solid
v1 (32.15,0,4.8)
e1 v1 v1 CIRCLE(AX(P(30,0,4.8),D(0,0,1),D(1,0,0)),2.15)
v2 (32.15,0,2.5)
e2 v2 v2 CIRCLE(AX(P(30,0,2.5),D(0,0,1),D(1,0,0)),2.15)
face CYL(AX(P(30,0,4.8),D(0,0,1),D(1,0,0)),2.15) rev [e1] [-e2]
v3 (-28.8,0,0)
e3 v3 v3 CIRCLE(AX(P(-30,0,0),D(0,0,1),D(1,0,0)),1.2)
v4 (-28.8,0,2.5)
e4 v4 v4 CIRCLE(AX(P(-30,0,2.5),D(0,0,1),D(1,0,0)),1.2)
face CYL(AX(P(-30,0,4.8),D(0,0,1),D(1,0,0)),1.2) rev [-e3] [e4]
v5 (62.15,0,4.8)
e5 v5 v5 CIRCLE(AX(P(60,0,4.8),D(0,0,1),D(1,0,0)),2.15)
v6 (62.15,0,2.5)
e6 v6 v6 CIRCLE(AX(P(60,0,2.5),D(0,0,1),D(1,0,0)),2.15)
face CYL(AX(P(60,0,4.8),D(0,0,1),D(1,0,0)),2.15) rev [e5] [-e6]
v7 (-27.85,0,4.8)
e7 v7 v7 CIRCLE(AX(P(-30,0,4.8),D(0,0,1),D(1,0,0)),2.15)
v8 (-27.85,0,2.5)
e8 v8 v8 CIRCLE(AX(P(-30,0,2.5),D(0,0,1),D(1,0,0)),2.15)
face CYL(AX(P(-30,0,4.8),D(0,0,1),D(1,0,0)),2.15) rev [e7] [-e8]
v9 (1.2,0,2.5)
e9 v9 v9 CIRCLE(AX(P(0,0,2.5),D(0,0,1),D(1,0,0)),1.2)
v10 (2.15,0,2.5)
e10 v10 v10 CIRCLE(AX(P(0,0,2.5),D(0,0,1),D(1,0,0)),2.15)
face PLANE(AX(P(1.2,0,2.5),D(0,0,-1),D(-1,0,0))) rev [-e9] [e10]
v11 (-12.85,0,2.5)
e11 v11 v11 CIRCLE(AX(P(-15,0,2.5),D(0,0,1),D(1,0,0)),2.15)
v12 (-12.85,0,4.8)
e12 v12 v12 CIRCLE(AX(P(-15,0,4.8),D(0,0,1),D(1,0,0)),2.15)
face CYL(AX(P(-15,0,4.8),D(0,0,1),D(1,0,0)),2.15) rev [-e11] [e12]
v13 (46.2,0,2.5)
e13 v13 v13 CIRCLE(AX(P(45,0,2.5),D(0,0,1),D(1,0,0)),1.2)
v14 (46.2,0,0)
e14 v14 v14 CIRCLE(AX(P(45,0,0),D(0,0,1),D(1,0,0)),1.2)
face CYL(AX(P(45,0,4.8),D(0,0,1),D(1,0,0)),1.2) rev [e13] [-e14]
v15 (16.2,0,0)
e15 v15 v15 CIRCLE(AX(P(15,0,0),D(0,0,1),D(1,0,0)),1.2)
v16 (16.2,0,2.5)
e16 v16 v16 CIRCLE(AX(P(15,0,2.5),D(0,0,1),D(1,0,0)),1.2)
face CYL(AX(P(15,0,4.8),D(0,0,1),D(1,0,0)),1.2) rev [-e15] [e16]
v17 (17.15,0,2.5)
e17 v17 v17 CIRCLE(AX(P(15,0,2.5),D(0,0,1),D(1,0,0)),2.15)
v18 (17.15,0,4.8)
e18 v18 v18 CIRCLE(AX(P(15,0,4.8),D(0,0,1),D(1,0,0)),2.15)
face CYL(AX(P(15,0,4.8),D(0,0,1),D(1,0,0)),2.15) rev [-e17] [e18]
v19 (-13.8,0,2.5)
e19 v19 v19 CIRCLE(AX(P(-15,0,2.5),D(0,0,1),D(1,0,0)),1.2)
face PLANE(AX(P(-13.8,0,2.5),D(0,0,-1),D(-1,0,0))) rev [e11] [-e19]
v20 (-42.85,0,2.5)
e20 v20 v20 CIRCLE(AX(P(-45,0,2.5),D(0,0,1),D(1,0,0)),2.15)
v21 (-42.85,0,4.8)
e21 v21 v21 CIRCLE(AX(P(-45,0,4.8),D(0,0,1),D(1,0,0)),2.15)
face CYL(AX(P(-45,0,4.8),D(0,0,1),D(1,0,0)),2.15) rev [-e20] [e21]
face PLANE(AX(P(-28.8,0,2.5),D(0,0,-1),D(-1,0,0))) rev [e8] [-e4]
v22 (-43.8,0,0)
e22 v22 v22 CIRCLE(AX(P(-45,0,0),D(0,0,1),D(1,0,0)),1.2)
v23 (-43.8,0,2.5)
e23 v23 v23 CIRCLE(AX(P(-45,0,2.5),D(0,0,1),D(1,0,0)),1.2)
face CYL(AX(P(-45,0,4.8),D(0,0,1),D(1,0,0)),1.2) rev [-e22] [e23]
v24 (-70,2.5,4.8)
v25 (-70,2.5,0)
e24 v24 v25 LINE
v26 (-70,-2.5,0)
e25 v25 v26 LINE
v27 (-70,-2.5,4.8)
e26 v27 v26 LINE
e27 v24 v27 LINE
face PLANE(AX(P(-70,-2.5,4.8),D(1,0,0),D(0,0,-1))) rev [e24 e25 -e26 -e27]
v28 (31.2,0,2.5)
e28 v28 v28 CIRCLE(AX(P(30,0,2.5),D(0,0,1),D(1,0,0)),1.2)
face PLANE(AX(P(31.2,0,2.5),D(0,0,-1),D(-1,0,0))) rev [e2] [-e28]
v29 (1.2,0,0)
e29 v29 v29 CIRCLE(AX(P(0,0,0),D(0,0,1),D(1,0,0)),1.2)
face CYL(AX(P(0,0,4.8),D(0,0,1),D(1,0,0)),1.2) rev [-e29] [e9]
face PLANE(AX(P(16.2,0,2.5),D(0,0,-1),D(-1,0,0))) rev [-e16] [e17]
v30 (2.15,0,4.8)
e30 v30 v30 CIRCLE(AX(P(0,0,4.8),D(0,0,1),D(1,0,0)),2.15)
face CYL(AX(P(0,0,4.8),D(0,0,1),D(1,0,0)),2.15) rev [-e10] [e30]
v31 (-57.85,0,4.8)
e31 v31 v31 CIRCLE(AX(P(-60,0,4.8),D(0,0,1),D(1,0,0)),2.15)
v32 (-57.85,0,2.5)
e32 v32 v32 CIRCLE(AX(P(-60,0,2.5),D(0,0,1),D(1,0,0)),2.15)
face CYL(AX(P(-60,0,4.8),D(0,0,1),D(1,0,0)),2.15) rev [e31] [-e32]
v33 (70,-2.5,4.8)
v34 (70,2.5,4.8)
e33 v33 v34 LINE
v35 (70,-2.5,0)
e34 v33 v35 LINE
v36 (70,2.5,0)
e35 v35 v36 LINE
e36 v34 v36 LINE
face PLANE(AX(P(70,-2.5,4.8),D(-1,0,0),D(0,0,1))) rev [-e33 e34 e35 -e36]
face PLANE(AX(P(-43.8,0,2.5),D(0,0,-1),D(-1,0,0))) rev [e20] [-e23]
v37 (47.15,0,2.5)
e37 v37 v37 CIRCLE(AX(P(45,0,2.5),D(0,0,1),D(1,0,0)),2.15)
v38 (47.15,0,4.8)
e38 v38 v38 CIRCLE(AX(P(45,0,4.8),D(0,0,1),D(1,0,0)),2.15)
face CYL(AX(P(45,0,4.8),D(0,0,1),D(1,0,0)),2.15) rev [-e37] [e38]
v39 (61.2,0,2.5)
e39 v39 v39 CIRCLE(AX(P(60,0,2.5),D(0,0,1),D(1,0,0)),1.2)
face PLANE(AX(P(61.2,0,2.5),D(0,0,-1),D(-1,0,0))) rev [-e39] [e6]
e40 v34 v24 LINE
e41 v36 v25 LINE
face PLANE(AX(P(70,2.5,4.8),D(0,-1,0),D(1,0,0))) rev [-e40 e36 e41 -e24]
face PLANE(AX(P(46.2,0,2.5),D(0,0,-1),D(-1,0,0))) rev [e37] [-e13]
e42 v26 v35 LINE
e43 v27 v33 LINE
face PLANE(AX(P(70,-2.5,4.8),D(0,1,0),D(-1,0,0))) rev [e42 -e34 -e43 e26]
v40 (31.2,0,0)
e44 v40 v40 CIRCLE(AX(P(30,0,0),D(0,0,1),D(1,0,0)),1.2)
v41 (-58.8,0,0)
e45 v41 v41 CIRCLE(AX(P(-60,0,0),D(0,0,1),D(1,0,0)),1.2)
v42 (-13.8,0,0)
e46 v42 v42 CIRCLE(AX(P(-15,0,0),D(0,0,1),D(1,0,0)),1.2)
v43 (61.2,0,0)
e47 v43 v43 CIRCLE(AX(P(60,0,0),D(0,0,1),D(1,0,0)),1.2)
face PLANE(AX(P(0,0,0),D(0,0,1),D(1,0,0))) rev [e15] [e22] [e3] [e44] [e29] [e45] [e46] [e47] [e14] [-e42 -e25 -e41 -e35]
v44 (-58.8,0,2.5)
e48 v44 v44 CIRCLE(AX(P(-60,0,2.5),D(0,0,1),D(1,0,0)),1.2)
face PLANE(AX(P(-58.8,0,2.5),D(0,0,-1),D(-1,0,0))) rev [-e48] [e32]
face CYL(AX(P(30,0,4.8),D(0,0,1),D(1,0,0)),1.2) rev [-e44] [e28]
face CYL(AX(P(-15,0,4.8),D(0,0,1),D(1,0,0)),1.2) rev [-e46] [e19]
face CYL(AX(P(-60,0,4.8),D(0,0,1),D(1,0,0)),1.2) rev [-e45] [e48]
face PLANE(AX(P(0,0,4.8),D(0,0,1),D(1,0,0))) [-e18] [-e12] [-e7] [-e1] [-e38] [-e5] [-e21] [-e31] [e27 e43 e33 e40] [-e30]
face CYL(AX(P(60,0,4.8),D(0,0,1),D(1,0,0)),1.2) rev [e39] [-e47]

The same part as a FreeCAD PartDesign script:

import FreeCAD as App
import Part
import Sketcher
Q = App.Units.Quantity

doc = App.newDocument("Part")
body = doc.addObject("PartDesign::Body", "Body")

sketch1 = body.newObject("Sketcher::SketchObject", "Sketch")
sketch1.AttachmentSupport = (doc.getObject("XY_Plane"), [""])
sketch1.MapMode = "FlatFace"
sketch1.addGeometry([
    Part.LineSegment(App.Vector(-70, 2, 0), App.Vector(-70, -2, 0)),
    Part.LineSegment(App.Vector(-70, -2, 0), App.Vector(70, -2, 0)),
    Part.LineSegment(App.Vector(70, -2, 0), App.Vector(70, 2, 0)),
    Part.LineSegment(App.Vector(70, 2, 0), App.Vector(-70, 2, 0)),
], False)
sketch1.addConstraint([
    Sketcher.Constraint("Coincident", 0, 2, 1, 1),
    Sketcher.Constraint("Coincident", 1, 2, 2, 1),
    Sketcher.Constraint("Coincident", 2, 2, 3, 1),
    Sketcher.Constraint("Coincident", 3, 2, 0, 1),
    Sketcher.Constraint("Vertical", 0),
    Sketcher.Constraint("Horizontal", 1),
    Sketcher.Constraint("Vertical", 2),
    Sketcher.Constraint("Horizontal", 3),
    Sketcher.Constraint("Symmetric", 0, 2, 2, 2, -1, 1),
    Sketcher.Constraint("DistanceX", 1, 1, 1, 2, Q("140 mm")),
    Sketcher.Constraint("DistanceY", 0, 2, 0, 1, Q("5 mm")),
])
pad1 = body.newObject("PartDesign::Pad", "Pad")
pad1.Profile = sketch1
pad1.Length = 4.8

sketch2 = body.newObject("Sketcher::SketchObject", "Sketch001")
sketch2.AttachmentSupport = (doc.getObject("XY_Plane"), [""])
sketch2.MapMode = "FlatFace"
sketch2.AttachmentOffset = App.Placement(App.Vector(0, 0, 4.8), App.Rotation())
sketch2.addGeometry([
    Part.Circle(App.Vector(-60, 0, 0), App.Vector(0, 0, 1), 1.2),
    Part.Circle(App.Vector(-45, 0, 0), App.Vector(0, 0, 1), 1.2),
    Part.Circle(App.Vector(-30, 0, 0), App.Vector(0, 0, 1), 1.2),
    Part.Circle(App.Vector(-15, 0, 0), App.Vector(0, 0, 1), 1.2),
    Part.Circle(App.Vector(0, 0, 0), App.Vector(0, 0, 1), 1.2),
    Part.Circle(App.Vector(15, 0, 0), App.Vector(0, 0, 1), 1.2),
    Part.Circle(App.Vector(30, 0, 0), App.Vector(0, 0, 1), 1.2),
    Part.Circle(App.Vector(45, 0, 0), App.Vector(0, 0, 1), 1.2),
    Part.Circle(App.Vector(60, 0, 0), App.Vector(0, 0, 1), 1.2),
], False)
sketch2.addConstraint([
    Sketcher.Constraint("Coincident", 4, 3, -1, 1),
    Sketcher.Constraint("Equal", 0, 1),
    Sketcher.Constraint("Equal", 1, 2),
    Sketcher.Constraint("Equal", 2, 3),
    Sketcher.Constraint("Equal", 3, 4),
    Sketcher.Constraint("Equal", 4, 5),
    Sketcher.Constraint("Equal", 5, 6),
    Sketcher.Constraint("Equal", 6, 7),
    Sketcher.Constraint("Equal", 7, 8),
    Sketcher.Constraint("Symmetric", 3, 3, 5, 3, -1, 1),
    Sketcher.Constraint("Symmetric", 2, 3, 6, 3, -1, 1),
    Sketcher.Constraint("Symmetric", 1, 3, 7, 3, -1, 1),
    Sketcher.Constraint("Symmetric", 0, 3, 8, 3, -1, 1),
    Sketcher.Constraint("PointOnObject", 0, 3, -1),
    Sketcher.Constraint("PointOnObject", 1, 3, -1),
    Sketcher.Constraint("PointOnObject", 2, 3, -1),
    Sketcher.Constraint("PointOnObject", 3, 3, -1),
    Sketcher.Constraint("Diameter", 0, Q("2.4 mm")),
    Sketcher.Constraint("DistanceX", 0, 3, -1, 1, Q("60 mm")),
    Sketcher.Constraint("DistanceX", 1, 3, -1, 1, Q("45 mm")),
    Sketcher.Constraint("DistanceX", 2, 3, -1, 1, Q("30 mm")),
    Sketcher.Constraint("DistanceX", 3, 3, -1, 1, Q("15 mm")),
])
doc.recompute()
hole = body.newObject("PartDesign::Hole", "Hole")
hole.Profile = sketch2
hole.ThreadType = "None"
hole.Diameter = 2.4
hole.DepthType = "Dimension"
hole.Depth = 5.2
hole.DrillPoint = "Angled"
hole.DrillPointAngle = 118
hole.HoleCutType = "Counterbore"
hole.HoleCutDiameter = 4.3
hole.HoleCutDepth = 2.3

doc.recompute()
